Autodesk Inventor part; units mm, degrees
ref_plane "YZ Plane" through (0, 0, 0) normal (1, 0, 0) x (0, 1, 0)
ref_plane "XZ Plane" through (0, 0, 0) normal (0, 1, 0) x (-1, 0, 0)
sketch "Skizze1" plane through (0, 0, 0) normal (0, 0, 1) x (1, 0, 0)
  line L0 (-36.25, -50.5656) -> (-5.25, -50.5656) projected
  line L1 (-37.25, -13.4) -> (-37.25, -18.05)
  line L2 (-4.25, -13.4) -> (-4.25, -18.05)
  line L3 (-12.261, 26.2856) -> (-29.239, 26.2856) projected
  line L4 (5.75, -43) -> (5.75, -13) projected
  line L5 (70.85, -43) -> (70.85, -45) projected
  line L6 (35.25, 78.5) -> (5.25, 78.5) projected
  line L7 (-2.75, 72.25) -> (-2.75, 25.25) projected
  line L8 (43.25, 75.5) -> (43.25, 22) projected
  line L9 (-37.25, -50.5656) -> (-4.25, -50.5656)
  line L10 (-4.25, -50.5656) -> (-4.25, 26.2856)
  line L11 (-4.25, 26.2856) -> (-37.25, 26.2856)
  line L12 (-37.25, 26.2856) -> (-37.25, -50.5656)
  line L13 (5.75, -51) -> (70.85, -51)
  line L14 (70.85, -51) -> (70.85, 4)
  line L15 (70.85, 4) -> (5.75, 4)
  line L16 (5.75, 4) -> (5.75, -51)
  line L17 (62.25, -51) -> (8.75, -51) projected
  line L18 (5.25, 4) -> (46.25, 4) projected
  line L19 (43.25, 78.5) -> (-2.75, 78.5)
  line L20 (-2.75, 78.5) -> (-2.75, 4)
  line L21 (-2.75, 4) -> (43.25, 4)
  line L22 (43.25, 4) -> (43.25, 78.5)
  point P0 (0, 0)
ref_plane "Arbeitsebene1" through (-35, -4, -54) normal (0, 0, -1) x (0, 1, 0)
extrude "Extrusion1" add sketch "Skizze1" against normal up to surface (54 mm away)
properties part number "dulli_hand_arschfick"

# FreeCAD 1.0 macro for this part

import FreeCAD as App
import Part
import Sketcher

V = App.Vector

doc = App.newDocument("Part")
params = doc.addObject("Spreadsheet::Sheet", "Params")
for row, (alias, value) in enumerate([
    ("sketch1_width", "33 mm"),
    ("sketch1_width2", "46 mm"),
    ("sketch1_height", "55 mm"),
    ("sketch1_width3", "65.1 mm"),
    ("sketch1_width4", "27.6 mm"),
    ("pad1_length", "54 mm"),
], start=1):
    params.set(f"A{row}", alias)
    params.set(f"B{row}", "=" + value)
    params.setAlias(f"B{row}", alias)

body = doc.addObject("PartDesign::Body", "Body")
body.AllowCompound = True

# Sketch on XY plane
sketch1 = body.newObject("Sketcher::SketchObject", "Sketch")
sketch1.AttachmentSupport = (doc.getObject("XY_Plane"), [""])
sketch1.MapMode = "FlatFace"
sketch1.addGeometry(Part.LineSegment(V(-37.25, -50.5656, 0), V(-4.25, -50.5656, 0)), False)
sketch1.addGeometry(Part.LineSegment(V(-4.25, -50.5656, 0), V(-4.25, 26.2856, 0)), False)
sketch1.addGeometry(Part.LineSegment(V(-4.25, 26.2856, 0), V(-37.25, 26.2856, 0)), False)
sketch1.addGeometry(Part.LineSegment(V(-37.25, 26.2856, 0), V(-37.25, -50.5656, 0)), False)
sketch1.addGeometry(Part.LineSegment(V(5.75, -51, 0), V(70.85, -51, 0)), False)
sketch1.addGeometry(Part.LineSegment(V(70.85, -51, 0), V(70.85, 4, 0)), False)
sketch1.addGeometry(Part.LineSegment(V(70.85, 4, 0), V(43.25, 4, 0)), False)
sketch1.addGeometry(Part.LineSegment(V(43.25, 4, 0), V(43.25, 78.5, 0)), False)
sketch1.addGeometry(Part.LineSegment(V(43.25, 78.5, 0), V(-2.75, 78.5, 0)), False)
sketch1.addGeometry(Part.LineSegment(V(-2.75, 78.5, 0), V(-2.75, 4, 0)), False)
sketch1.addGeometry(Part.LineSegment(V(-2.75, 4, 0), V(5.75, 4, 0)), False)
sketch1.addGeometry(Part.LineSegment(V(5.75, 4, 0), V(5.75, -51, 0)), False)
sketch1.addConstraint(Sketcher.Constraint("Coincident", 0, 2, 1, 1))
sketch1.addConstraint(Sketcher.Constraint("Coincident", 1, 2, 2, 1))
sketch1.addConstraint(Sketcher.Constraint("Coincident", 2, 2, 3, 1))
sketch1.addConstraint(Sketcher.Constraint("Coincident", 3, 2, 0, 1))
sketch1.addConstraint(Sketcher.Constraint("Coincident", 4, 2, 5, 1))
sketch1.addConstraint(Sketcher.Constraint("Coincident", 5, 2, 6, 1))
sketch1.addConstraint(Sketcher.Constraint("Coincident", 6, 2, 7, 1))
sketch1.addConstraint(Sketcher.Constraint("Coincident", 7, 2, 8, 1))
sketch1.addConstraint(Sketcher.Constraint("Coincident", 8, 2, 9, 1))
sketch1.addConstraint(Sketcher.Constraint("Coincident", 9, 2, 10, 1))
sketch1.addConstraint(Sketcher.Constraint("Coincident", 10, 2, 11, 1))
sketch1.addConstraint(Sketcher.Constraint("Coincident", 11, 2, 4, 1))
sketch1.addConstraint(Sketcher.Constraint("Horizontal", 0))
sketch1.addConstraint(Sketcher.Constraint("Vertical", 1))
sketch1.addConstraint(Sketcher.Constraint("Horizontal", 2))
sketch1.addConstraint(Sketcher.Constraint("Vertical", 3))
sketch1.addConstraint(Sketcher.Constraint("Horizontal", 4))
sketch1.addConstraint(Sketcher.Constraint("Vertical", 5))
sketch1.addConstraint(Sketcher.Constraint("Horizontal", 6))
sketch1.addConstraint(Sketcher.Constraint("Vertical", 7))
sketch1.addConstraint(Sketcher.Constraint("Horizontal", 8))
sketch1.addConstraint(Sketcher.Constraint("Vertical", 9))
sketch1.addConstraint(Sketcher.Constraint("Horizontal", 10))
sketch1.addConstraint(Sketcher.Constraint("Vertical", 11))
sketch1.addConstraint(Sketcher.Constraint("Horizontal", 6, 2, 9, 2))
sketch1.addConstraint(Sketcher.Constraint("DistanceX", 0, 1, 0, 2, 33.0))
sketch1.addConstraint(Sketcher.Constraint("DistanceX", 8, 2, 8, 1, 46.0))
sketch1.addConstraint(Sketcher.Constraint("DistanceY", 5, 1, 5, 2, 55.0))
sketch1.addConstraint(Sketcher.Constraint("DistanceX", 4, 1, 4, 2, 65.1))
sketch1.addConstraint(Sketcher.Constraint("DistanceX", 6, 2, 6, 1, 27.6))
sketch1.addConstraint(Sketcher.Constraint("DistanceY", 7, 1, 7, 2, 74.5))
sketch1.addConstraint(Sketcher.Constraint("DistanceY", 4, 2, -1, 1, 51.0))
sketch1.addConstraint(Sketcher.Constraint("DistanceX", 1, 2, 10, 2, 10.0))
sketch1.addConstraint(Sketcher.Constraint("DistanceX", 0, 2, -1, 1, 4.25))
sketch1.addConstraint(Sketcher.Constraint("DistanceY", 1, 1, 1, 2, 76.8512))
sketch1.addConstraint(Sketcher.Constraint("DistanceY", 0, 2, -1, 1, 50.5656))
sketch1.setExpression("Constraints[25]", "Params.sketch1_width")
sketch1.setExpression("Constraints[26]", "Params.sketch1_width2")
sketch1.setExpression("Constraints[27]", "Params.sketch1_height")
sketch1.setExpression("Constraints[28]", "Params.sketch1_width3")
sketch1.setExpression("Constraints[29]", "Params.sketch1_width4")
pad1 = body.newObject("PartDesign::Pad", "Pad")
pad1.Profile = sketch1
pad1.setExpression("Length", "Params.pad1_length")
pad1.Reversed = True

doc.recompute()
